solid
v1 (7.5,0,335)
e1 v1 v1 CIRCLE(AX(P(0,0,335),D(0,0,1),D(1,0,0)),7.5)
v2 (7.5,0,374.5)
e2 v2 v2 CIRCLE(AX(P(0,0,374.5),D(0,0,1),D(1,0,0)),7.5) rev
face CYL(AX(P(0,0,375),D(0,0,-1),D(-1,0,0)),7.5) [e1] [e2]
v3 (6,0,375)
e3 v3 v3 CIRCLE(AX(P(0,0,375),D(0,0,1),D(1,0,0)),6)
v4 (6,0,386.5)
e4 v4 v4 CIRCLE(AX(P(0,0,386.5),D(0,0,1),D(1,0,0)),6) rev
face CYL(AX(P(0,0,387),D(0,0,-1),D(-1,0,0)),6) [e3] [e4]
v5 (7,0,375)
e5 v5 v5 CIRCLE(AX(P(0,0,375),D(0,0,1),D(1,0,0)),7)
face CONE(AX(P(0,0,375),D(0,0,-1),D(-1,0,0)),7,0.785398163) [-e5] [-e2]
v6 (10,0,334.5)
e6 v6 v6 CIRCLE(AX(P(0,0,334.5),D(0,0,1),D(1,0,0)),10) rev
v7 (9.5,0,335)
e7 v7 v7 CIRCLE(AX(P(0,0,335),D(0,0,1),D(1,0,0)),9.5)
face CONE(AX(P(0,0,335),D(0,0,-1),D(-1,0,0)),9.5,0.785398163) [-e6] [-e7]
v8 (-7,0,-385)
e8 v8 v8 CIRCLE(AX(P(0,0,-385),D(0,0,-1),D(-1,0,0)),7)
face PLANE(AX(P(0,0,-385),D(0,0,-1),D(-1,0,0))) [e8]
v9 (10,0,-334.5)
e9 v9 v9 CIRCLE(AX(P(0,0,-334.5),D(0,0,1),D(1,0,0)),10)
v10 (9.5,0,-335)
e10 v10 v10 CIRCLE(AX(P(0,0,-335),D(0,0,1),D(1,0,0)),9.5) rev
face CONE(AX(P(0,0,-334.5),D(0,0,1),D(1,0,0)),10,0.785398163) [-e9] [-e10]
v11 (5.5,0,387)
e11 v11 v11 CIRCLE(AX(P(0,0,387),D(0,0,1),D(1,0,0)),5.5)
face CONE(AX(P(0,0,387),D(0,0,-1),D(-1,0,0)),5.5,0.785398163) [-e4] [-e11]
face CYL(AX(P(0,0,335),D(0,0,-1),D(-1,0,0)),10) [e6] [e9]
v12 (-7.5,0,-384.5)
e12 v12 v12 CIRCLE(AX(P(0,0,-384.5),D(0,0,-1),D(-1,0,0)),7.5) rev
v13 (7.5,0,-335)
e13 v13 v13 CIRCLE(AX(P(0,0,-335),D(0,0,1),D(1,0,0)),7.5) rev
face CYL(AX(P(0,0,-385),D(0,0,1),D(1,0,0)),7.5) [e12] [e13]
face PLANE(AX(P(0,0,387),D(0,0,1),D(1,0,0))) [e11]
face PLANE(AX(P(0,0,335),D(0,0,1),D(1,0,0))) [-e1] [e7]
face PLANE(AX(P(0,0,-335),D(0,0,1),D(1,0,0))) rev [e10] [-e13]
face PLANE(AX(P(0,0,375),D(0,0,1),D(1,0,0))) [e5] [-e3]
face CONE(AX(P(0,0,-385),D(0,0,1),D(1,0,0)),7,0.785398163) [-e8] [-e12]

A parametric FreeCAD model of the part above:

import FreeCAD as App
import Part
import Sketcher
from FreeCAD import Vector


def edges_at(feature, points):
    """Names of the edges that pass closest to the given points."""
    edges = feature.Shape.Edges
    near = lambda p: min(range(len(edges)), key=lambda i: edges[i].distToShape(Part.Vertex(*p))[0])
    return sorted({f"Edge{near(p) + 1}" for p in points})

doc = App.newDocument("Part")
body = doc.addObject("PartDesign::Body", "Body")

sketch1 = body.newObject("Sketcher::SketchObject", "Sketch")
sketch1.AttachmentSupport = (doc.getObject("XY_Plane"), [""])
sketch1.MapMode = "FlatFace"
sketch1.addGeometry(Part.Circle(Vector(0, 0, 0), Vector(0, 0, 1), 10), False)
sketch1.addConstraint(Sketcher.Constraint("Coincident", 0, 3, -1, 1))
sketch1.addConstraint(Sketcher.Constraint("Diameter", 0, 20.0))
pad1 = body.newObject("PartDesign::Pad", "Pad")
pad1.Profile = sketch1
pad1.Length = 670
pad1.Midplane = True

sketch2 = body.newObject("Sketcher::SketchObject", "Sketch001")
sketch2.AttachmentSupport = (doc.getObject("XY_Plane"), [""])
sketch2.MapMode = "FlatFace"
sketch2.AttachmentOffset = App.Placement(Vector(0, 0, 335), App.Rotation())
sketch2.addGeometry(Part.Circle(Vector(0, 0, 0), Vector(0, 0, 1), 7.5), False)
sketch2.addConstraint(Sketcher.Constraint("Coincident", 0, 3, -1, 1))
sketch2.addConstraint(Sketcher.Constraint("Diameter", 0, 15.0))
pad2 = body.newObject("PartDesign::Pad", "Pad001")
pad2.Profile = sketch2
pad2.Length = 40

sketch3 = body.newObject("Sketcher::SketchObject", "Sketch002")
sketch3.AttachmentSupport = (doc.getObject("XY_Plane"), [""])
sketch3.MapMode = "FlatFace"
sketch3.AttachmentOffset = App.Placement(Vector(0, 0, 375), App.Rotation())
sketch3.addGeometry(Part.Circle(Vector(0, 0, 0), Vector(0, 0, 1), 6), False)
sketch3.addConstraint(Sketcher.Constraint("Coincident", 0, 3, -1, 1))
sketch3.addConstraint(Sketcher.Constraint("Diameter", 0, 12.0))
pad3 = body.newObject("PartDesign::Pad", "Pad002")
pad3.Profile = sketch3
pad3.Length = 12

sketch4 = body.newObject("Sketcher::SketchObject", "Sketch003")
sketch4.AttachmentSupport = (doc.getObject("XY_Plane"), [""])
sketch4.MapMode = "FlatFace"
sketch4.AttachmentOffset = App.Placement(Vector(0, 0, -385), App.Rotation())
sketch4.addGeometry(Part.Circle(Vector(0, 0, 0), Vector(0, 0, 1), 7.5), False)
sketch4.addConstraint(Sketcher.Constraint("Coincident", 0, 3, -1, 1))
sketch4.addConstraint(Sketcher.Constraint("Diameter", 0, 15.0))
pad4 = body.newObject("PartDesign::Pad", "Pad003")
pad4.Profile = sketch4
pad4.Length = 50
doc.recompute()

chamfer = body.newObject("PartDesign::Chamfer", "Chamfer")
chamfer.Base = (pad4, edges_at(pad4, [
    (-6, 0, 387),
    (-7.5, 0, -385),
    (-10, 0, -335),
    (-10, 0, 335),
    (-7.5, 0, 375),
]))
chamfer.Size = 0.5

doc.recompute()
